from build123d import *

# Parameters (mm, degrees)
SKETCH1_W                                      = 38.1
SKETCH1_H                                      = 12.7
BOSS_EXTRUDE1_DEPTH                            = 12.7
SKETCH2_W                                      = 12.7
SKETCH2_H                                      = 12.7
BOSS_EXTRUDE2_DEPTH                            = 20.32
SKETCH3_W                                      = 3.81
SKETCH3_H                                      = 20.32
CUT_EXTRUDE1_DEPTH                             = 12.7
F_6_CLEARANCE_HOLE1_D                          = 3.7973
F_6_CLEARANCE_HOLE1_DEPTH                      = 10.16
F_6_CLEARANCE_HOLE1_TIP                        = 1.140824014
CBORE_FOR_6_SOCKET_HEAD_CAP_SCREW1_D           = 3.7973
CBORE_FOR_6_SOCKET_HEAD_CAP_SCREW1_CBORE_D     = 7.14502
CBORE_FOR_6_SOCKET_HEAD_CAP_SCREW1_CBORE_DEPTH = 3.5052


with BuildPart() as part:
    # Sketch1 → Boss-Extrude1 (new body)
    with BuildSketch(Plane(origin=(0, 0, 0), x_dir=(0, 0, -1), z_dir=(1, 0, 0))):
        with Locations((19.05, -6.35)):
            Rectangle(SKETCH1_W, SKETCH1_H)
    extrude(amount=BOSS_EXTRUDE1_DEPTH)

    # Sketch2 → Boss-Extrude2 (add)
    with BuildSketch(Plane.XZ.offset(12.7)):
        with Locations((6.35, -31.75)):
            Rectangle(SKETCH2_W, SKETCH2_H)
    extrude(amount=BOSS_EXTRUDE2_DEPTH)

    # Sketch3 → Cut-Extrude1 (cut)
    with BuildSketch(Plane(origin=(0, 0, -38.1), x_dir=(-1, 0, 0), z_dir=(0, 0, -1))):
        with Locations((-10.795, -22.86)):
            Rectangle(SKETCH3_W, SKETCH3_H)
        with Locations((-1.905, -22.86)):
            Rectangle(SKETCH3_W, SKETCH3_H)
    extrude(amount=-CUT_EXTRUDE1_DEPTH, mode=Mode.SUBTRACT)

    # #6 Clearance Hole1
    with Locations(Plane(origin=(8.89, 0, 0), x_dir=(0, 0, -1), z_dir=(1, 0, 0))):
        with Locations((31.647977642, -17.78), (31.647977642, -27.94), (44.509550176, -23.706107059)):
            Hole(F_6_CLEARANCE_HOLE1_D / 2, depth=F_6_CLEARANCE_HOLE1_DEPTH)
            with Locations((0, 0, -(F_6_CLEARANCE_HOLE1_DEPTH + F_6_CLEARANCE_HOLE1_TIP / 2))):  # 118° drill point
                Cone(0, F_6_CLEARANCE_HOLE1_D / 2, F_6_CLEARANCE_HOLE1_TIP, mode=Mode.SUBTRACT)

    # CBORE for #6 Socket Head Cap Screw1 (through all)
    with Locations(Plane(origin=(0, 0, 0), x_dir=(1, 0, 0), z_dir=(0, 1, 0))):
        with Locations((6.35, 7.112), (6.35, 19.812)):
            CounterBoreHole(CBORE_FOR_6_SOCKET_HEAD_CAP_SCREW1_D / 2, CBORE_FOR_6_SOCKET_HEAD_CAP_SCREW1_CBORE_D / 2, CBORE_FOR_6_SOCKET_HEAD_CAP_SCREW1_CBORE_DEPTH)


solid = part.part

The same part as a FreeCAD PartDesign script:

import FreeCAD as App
import Part
import Sketcher
Q = App.Units.Quantity


def add_polygon(sketch, points):
    """Adds a closed chain of lines whose ends are joined by coincident constraints."""
    first, n = sketch.GeometryCount, len(points)
    for a, b in zip(points, points[1:] + points[:1]):
        sketch.addGeometry(Part.LineSegment(App.Vector(*a, 0), App.Vector(*b, 0)), False)
    for i in range(n):
        sketch.addConstraint(Sketcher.Constraint("Coincident", first + i, 2, first + (i + 1) % n, 1))

doc = App.newDocument("Part")
params = doc.addObject("Spreadsheet::Sheet", "Params")
for row, (alias, value) in enumerate([
    ("sketch1_width", "0.5 in"),
    ("sketch1_height", "1.5 in"),
    ("pad1_length", "0.5 in"),
    ("sketch2_width", "0.5 in"),
    ("pad2_length", "0.8 in"),
    ("sketch3_height", "0.8 in"),
    ("sketch3_width", "0.15 in"),
    ("pocket1_length", "0.5 in"),
    ("hole_diameter", "0.1495 in"),
    ("hole_depth", "0.4 in"),
    ("hole2_diameter", "0.1495 in"),
    ("hole2_cbore_diameter", "0.2813 in"),
    ("hole2_cbore_depth", "0.138 in"),
], start=1):
    params.set(f"A{row}", alias)
    params.set(f"B{row}", "=" + value)
    params.setAlias(f"B{row}", alias)

body = doc.addObject("PartDesign::Body", "Body")

sketch1 = doc.addObject("Sketcher::SketchObject", "Sketch")
body.addObject(sketch1)
sketch1.AttachmentSupport = (doc.YZ_Plane, [""])
sketch1.MapMode = "FlatFace"
add_polygon(sketch1, [(0, 0), (-13, 0), (-13, -38), (0, -38)])
sketch1.addConstraint(Sketcher.Constraint("Horizontal", 0))
sketch1.addConstraint(Sketcher.Constraint("Vertical", 1))
sketch1.addConstraint(Sketcher.Constraint("Horizontal", 2))
sketch1.addConstraint(Sketcher.Constraint("Vertical", 3))
sketch1.addConstraint(Sketcher.Constraint("Coincident", 3, 2, -1, 1))
sketch1.addConstraint(Sketcher.Constraint("DistanceX", 0, 2, 0, 1, Q("0.5 in")))
sketch1.addConstraint(Sketcher.Constraint("DistanceY", 1, 2, 1, 1, Q("1.5 in")))
sketch1.setExpression("Constraints[9]", "Params.sketch1_width")
sketch1.setExpression("Constraints[10]", "Params.sketch1_height")
pad1 = doc.addObject("PartDesign::Pad", "Pad")
body.addObject(pad1)
pad1.Profile = sketch1
pad1.setExpression("Length", "Params.pad1_length")

sketch2 = doc.addObject("Sketcher::SketchObject", "Sketch001")
body.addObject(sketch2)
sketch2.AttachmentSupport = (doc.XZ_Plane, [""])
sketch2.MapMode = "FlatFace"
sketch2.AttachmentOffset = App.Placement(App.Vector(0, 0, 0.5 * 25.4), App.Rotation())
add_polygon(sketch2, [(0, -25), (0, -38), (13, -38), (13, -25)])
sketch2.addConstraint(Sketcher.Constraint("Vertical", 0))
sketch2.addConstraint(Sketcher.Constraint("Horizontal", 1))
sketch2.addConstraint(Sketcher.Constraint("Vertical", 2))
sketch2.addConstraint(Sketcher.Constraint("Horizontal", 3))
sketch2.addConstraint(Sketcher.Constraint("PointOnObject", 0, 2, -2))
sketch2.addConstraint(Sketcher.Constraint("Equal", 3, 0))
sketch2.addConstraint(Sketcher.Constraint("DistanceX", 1, 1, 1, 2, Q("0.5 in")))
sketch2.addConstraint(Sketcher.Constraint("DistanceY", 2, 2, -1, 1, Q("1 in")))
sketch2.setExpression("Constraints[10]", "Params.sketch2_width")
pad2 = doc.addObject("PartDesign::Pad", "Pad001")
body.addObject(pad2)
pad2.Profile = sketch2
pad2.setExpression("Length", "Params.pad2_length")

sketch3 = doc.addObject("Sketcher::SketchObject", "Sketch002")
body.addObject(sketch3)
sketch3.AttachmentSupport = (doc.XY_Plane, [""])
sketch3.MapMode = "FlatFace"
sketch3.AttachmentOffset = App.Placement(App.Vector(0, 0, -1.5 * 25.4), App.Rotation())
add_polygon(sketch3, [(12.7, -12.7), (12.7, -33), (8.9, -33), (8.9, -12.7)])
add_polygon(sketch3, [(3.8, -12.7), (3.8, -33), (0, -33), (0, -12.7)])
sketch3.addConstraint(Sketcher.Constraint("Vertical", 0))
sketch3.addConstraint(Sketcher.Constraint("Horizontal", 1))
sketch3.addConstraint(Sketcher.Constraint("Vertical", 2))
sketch3.addConstraint(Sketcher.Constraint("Horizontal", 3))
sketch3.addConstraint(Sketcher.Constraint("Vertical", 4))
sketch3.addConstraint(Sketcher.Constraint("Horizontal", 5))
sketch3.addConstraint(Sketcher.Constraint("Vertical", 6))
sketch3.addConstraint(Sketcher.Constraint("Horizontal", 7))
sketch3.addConstraint(Sketcher.Constraint("PointOnObject", 5, 2, -2))
sketch3.addConstraint(Sketcher.Constraint("Horizontal", 1, 2, 4, 2))
sketch3.addConstraint(Sketcher.Constraint("Horizontal", 3, 2, 6, 2))
sketch3.addConstraint(Sketcher.Constraint("Equal", 3, 5))
sketch3.addConstraint(Sketcher.Constraint("DistanceY", 0, 2, 0, 1, Q("0.8 in")))
sketch3.addConstraint(Sketcher.Constraint("DistanceX", 1, 2, 1, 1, Q("0.15 in")))
sketch3.addConstraint(Sketcher.Constraint("DistanceX", -1, 1, 0, 2, Q("0.5 in")))
sketch3.addConstraint(Sketcher.Constraint("DistanceY", 0, 2, -1, 1, Q("1.3 in")))
sketch3.setExpression("Constraints[20]", "Params.sketch3_height")
sketch3.setExpression("Constraints[21]", "Params.sketch3_width")
pocket1 = doc.addObject("PartDesign::Pocket", "Pocket")
body.addObject(pocket1)
pocket1.Profile = sketch3
pocket1.setExpression("Length", "Params.pocket1_length")
pocket1.Reversed = True

sketch4 = doc.addObject("Sketcher::SketchObject", "Sketch003")
body.addObject(sketch4)
sketch4.AttachmentSupport = (doc.YZ_Plane, [""])
sketch4.MapMode = "FlatFace"
sketch4.AttachmentOffset = App.Placement(App.Vector(0, 0, 0.35 * 25.4), App.Rotation())
sketch4.addGeometry(Part.Circle(App.Vector(-17.8, -31.6, 0), App.Vector(0, 0, 1), 1.9), False)
sketch4.addGeometry(Part.Circle(App.Vector(-27.9, -31.6, 0), App.Vector(0, 0, 1), 1.9), False)
sketch4.addGeometry(Part.Circle(App.Vector(-23.7, -44.5, 0), App.Vector(0, 0, 1), 1.9), False)
sketch4.addConstraint(Sketcher.Constraint("Equal", 0, 1))
sketch4.addConstraint(Sketcher.Constraint("Equal", 1, 2))
sketch4.addConstraint(Sketcher.Constraint("Horizontal", 0, 3, 1, 3))
sketch4.addConstraint(Sketcher.Constraint("Diameter", 0, Q("0.1495 in")))
sketch4.addConstraint(Sketcher.Constraint("DistanceX", 0, 3, -1, 1, Q("0.7 in")))
sketch4.addConstraint(Sketcher.Constraint("DistanceX", 1, 3, -1, 1, Q("1.1 in")))
sketch4.addConstraint(Sketcher.Constraint("DistanceY", 2, 3, -1, 1, 44.50955))
sketch4.addConstraint(Sketcher.Constraint("DistanceY", 0, 3, -1, 1, 31.647978))
sketch4.addConstraint(Sketcher.Constraint("DistanceX", 2, 3, -1, 1, 23.706107))
doc.recompute()
hole = doc.addObject("PartDesign::Hole", "Hole")
body.addObject(hole)
hole.Profile = sketch4
hole.ThreadType = "None"
hole.setExpression("Diameter", "Params.hole_diameter")
hole.DepthType = "Dimension"
hole.setExpression("Depth", "Params.hole_depth")
hole.DrillPoint = "Angled"
hole.DrillPointAngle = 118

sketch5 = doc.addObject("Sketcher::SketchObject", "Sketch004")
body.addObject(sketch5)
sketch5.AttachmentSupport = (doc.XZ_Plane, [""])
sketch5.MapMode = "FlatFace"
sketch5.addGeometry(Part.Circle(App.Vector(6.3, -7.1, 0), App.Vector(0, 0, 1), 1.9), False)
sketch5.addGeometry(Part.Circle(App.Vector(6.3, -19.8, 0), App.Vector(0, 0, 1), 1.9), False)
sketch5.addConstraint(Sketcher.Constraint("Equal", 0, 1))
sketch5.addConstraint(Sketcher.Constraint("Vertical", 0, 3, 1, 3))
sketch5.addConstraint(Sketcher.Constraint("Diameter", 0, Q("0.1495 in")))
sketch5.addConstraint(Sketcher.Constraint("DistanceY", 1, 3, 0, 3, Q("0.5 in")))
sketch5.addConstraint(Sketcher.Constraint("DistanceX", -1, 1, 0, 3, Q("0.25 in")))
sketch5.addConstraint(Sketcher.Constraint("DistanceY", 0, 3, -1, 1, Q("0.28 in")))
doc.recompute()
hole2 = doc.addObject("PartDesign::Hole", "Hole001")
body.addObject(hole2)
hole2.Profile = sketch5
hole2.ThreadType = "None"
hole2.setExpression("Diameter", "Params.hole2_diameter")
hole2.DepthType = "ThroughAll"
hole2.HoleCutType = "Counterbore"
hole2.setExpression("HoleCutDiameter", "Params.hole2_cbore_diameter")
hole2.setExpression("HoleCutDepth", "Params.hole2_cbore_depth")
hole2.Reversed = True

doc.recompute()
